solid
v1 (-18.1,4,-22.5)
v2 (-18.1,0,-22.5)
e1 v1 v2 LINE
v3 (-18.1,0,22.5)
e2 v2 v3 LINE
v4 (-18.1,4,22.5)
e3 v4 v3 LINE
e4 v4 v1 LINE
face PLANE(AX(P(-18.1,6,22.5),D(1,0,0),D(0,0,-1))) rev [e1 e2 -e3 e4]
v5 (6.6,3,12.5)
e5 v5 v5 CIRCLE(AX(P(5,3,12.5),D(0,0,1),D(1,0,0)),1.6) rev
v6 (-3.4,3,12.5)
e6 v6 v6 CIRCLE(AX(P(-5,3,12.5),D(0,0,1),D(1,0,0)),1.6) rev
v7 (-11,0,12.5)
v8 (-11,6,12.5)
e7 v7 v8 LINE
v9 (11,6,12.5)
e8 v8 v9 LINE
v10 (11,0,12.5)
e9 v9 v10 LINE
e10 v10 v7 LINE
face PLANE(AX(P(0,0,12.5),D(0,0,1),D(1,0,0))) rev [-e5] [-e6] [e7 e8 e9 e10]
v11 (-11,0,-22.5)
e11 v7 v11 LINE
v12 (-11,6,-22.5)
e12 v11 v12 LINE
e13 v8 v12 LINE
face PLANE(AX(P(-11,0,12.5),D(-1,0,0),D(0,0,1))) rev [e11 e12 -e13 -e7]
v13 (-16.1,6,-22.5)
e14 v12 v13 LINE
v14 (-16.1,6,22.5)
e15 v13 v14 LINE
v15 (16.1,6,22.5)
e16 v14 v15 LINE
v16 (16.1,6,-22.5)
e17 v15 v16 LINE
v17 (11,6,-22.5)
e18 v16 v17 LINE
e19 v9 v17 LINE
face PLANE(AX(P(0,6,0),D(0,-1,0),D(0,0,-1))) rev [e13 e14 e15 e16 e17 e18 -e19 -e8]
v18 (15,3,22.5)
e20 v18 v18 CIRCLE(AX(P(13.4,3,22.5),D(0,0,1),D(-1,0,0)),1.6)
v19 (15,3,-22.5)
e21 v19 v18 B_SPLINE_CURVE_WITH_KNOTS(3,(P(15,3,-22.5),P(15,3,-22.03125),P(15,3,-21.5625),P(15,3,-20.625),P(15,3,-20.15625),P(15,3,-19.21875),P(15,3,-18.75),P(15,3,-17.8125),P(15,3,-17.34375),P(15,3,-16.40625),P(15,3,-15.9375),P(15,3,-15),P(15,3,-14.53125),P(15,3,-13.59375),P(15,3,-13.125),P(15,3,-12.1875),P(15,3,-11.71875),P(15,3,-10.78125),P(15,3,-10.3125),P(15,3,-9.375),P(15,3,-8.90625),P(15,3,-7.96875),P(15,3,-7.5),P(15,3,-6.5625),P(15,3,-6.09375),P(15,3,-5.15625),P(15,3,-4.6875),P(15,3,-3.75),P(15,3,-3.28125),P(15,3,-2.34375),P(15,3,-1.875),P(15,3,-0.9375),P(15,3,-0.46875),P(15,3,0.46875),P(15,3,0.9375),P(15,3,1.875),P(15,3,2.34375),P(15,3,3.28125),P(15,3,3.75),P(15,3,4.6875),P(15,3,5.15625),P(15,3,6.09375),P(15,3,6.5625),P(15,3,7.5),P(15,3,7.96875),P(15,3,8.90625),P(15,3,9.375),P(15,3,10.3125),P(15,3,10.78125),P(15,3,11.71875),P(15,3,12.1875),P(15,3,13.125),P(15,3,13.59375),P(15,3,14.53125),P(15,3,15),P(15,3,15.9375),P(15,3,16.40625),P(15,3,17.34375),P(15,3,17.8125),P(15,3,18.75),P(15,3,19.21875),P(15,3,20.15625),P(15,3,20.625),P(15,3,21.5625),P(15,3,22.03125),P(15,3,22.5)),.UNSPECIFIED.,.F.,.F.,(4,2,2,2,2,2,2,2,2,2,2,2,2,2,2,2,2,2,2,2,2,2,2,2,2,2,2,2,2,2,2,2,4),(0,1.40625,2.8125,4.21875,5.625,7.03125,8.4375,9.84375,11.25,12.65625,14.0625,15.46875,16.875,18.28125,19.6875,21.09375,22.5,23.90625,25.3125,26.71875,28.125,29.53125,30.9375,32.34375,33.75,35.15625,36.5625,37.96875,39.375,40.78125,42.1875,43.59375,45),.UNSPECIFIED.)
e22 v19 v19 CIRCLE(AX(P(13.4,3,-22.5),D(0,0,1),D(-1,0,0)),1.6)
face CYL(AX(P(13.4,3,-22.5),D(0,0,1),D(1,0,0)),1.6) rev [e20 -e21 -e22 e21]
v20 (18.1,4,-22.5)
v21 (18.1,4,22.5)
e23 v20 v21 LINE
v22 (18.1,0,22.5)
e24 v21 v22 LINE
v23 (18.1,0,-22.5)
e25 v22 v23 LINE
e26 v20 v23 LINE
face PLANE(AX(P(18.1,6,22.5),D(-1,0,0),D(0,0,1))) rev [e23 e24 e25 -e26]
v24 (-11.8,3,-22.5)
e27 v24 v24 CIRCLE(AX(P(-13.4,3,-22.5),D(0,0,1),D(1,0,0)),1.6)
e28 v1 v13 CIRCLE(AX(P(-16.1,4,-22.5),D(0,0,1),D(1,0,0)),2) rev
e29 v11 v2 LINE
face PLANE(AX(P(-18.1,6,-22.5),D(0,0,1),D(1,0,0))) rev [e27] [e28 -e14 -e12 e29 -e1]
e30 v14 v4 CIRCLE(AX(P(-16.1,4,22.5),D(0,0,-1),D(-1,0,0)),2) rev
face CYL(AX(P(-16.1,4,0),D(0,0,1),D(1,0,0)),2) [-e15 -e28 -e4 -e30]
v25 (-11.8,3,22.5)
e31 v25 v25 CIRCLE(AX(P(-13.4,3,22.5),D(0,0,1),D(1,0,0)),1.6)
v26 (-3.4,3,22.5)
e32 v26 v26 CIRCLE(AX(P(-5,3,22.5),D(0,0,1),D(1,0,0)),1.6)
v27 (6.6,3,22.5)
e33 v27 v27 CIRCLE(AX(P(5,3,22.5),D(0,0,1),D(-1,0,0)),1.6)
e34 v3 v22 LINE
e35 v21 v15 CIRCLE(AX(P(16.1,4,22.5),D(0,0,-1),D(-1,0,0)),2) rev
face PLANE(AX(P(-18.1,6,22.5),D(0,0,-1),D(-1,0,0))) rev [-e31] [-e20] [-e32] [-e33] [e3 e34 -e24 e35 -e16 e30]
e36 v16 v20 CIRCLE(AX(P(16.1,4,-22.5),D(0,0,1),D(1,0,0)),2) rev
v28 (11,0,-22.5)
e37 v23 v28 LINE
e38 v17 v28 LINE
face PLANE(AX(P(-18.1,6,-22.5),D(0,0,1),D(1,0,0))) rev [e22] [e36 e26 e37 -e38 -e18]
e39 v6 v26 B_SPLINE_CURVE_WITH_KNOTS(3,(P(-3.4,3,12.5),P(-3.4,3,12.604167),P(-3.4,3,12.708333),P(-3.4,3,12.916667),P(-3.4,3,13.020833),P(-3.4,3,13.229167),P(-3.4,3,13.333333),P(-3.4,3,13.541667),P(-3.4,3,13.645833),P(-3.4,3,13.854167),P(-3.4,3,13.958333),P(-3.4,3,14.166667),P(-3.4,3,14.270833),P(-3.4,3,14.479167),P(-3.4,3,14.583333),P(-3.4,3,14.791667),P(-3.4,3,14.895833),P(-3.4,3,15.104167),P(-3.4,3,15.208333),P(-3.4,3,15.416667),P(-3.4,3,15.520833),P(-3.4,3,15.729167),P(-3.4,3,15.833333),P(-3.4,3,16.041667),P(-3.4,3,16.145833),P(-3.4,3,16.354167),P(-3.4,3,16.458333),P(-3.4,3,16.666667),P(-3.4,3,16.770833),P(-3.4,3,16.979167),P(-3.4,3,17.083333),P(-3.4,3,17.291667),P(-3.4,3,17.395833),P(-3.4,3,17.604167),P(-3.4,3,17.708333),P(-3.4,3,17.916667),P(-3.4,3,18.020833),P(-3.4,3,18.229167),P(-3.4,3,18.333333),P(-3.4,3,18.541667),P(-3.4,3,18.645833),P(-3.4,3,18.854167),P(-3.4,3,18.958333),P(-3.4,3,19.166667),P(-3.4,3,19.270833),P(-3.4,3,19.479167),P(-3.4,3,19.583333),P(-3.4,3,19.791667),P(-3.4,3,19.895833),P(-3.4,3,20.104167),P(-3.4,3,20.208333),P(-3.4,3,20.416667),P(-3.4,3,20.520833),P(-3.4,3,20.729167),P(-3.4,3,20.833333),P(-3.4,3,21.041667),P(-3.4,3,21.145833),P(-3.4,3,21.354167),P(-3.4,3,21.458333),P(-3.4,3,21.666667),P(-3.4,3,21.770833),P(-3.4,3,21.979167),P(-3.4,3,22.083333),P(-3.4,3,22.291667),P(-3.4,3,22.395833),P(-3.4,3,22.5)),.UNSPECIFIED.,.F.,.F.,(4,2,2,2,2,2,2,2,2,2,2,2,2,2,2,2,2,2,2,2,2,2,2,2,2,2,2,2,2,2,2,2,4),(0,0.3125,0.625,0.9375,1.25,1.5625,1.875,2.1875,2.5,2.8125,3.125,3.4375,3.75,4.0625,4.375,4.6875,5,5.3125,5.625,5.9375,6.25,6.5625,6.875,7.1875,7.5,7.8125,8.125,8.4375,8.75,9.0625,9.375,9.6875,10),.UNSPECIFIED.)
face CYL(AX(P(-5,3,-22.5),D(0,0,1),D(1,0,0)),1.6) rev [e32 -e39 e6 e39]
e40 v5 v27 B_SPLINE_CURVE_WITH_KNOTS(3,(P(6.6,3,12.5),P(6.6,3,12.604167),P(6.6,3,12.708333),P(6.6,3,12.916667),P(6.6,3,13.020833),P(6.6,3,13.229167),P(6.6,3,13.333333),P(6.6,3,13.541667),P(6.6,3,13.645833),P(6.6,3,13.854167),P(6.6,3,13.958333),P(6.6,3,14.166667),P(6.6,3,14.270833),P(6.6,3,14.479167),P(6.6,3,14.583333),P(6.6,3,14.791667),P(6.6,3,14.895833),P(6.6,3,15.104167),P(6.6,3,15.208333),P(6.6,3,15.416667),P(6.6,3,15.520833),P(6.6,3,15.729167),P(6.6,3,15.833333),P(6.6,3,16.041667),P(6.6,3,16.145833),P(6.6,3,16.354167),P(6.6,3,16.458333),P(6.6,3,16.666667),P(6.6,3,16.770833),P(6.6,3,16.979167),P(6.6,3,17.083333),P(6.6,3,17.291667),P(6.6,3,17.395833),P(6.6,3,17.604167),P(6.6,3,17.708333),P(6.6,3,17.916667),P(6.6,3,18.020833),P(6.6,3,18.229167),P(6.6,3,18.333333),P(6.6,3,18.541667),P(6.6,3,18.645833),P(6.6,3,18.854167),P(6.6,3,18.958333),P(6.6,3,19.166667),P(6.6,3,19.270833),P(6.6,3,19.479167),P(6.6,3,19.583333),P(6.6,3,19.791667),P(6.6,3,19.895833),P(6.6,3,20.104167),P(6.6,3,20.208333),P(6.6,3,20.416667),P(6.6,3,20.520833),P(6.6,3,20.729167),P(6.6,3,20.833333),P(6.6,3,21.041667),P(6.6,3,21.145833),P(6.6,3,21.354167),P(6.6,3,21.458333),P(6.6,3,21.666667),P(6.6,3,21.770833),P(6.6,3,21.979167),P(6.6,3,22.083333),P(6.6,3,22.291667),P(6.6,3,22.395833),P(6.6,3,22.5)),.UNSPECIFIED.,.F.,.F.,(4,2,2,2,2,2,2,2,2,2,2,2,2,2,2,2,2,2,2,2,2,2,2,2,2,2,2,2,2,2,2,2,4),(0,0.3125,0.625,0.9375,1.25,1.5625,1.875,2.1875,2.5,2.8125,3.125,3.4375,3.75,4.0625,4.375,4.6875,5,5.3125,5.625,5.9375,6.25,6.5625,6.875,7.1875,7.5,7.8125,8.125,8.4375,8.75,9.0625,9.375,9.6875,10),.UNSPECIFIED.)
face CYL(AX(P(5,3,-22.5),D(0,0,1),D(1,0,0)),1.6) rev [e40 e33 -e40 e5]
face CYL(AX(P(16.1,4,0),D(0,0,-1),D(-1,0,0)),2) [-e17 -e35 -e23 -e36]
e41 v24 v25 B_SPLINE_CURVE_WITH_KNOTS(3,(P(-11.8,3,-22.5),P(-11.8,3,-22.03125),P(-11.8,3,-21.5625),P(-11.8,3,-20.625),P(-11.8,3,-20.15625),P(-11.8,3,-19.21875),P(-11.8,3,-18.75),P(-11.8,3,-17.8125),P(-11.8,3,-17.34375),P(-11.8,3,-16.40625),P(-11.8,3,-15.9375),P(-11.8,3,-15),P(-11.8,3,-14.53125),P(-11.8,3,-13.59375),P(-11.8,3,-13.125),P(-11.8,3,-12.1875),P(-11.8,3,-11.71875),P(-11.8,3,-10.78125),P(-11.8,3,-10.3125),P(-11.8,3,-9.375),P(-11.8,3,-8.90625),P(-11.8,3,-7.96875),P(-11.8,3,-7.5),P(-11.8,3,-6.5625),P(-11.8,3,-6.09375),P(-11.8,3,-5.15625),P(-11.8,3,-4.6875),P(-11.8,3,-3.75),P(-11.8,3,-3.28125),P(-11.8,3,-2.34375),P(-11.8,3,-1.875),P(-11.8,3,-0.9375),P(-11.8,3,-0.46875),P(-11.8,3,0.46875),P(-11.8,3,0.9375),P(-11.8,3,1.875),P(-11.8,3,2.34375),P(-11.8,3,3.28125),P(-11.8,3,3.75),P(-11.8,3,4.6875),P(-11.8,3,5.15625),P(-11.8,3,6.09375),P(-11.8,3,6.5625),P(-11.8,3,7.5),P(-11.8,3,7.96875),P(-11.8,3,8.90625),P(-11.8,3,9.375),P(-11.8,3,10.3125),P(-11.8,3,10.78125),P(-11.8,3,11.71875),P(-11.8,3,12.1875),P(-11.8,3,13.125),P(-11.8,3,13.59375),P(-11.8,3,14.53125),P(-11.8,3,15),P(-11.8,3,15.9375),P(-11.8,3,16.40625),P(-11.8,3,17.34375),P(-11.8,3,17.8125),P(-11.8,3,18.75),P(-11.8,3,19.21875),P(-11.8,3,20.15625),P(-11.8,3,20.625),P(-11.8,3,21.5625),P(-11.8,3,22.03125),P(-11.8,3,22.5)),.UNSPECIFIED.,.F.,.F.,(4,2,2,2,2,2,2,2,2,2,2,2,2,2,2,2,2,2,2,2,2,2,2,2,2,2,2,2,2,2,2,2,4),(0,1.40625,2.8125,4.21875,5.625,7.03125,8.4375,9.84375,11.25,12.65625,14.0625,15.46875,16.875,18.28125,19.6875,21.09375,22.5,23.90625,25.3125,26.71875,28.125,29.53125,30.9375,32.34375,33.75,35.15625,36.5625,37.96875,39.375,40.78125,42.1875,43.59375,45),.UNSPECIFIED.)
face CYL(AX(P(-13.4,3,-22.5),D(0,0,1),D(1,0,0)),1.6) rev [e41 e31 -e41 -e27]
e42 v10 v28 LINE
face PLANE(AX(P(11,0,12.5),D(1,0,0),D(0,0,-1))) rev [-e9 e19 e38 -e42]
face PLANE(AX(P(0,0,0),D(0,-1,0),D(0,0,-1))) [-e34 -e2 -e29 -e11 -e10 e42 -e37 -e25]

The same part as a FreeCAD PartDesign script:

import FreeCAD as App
import Part
import Sketcher
from FreeCAD import Vector
Q = App.Units.Quantity


def edges_at(feature, points):
    """Names of the edges that pass closest to the given points."""
    edges = feature.Shape.Edges
    near = lambda p: min(range(len(edges)), key=lambda i: edges[i].distToShape(Part.Vertex(*p))[0])
    return sorted({f"Edge{near(p) + 1}" for p in points})


def add_polygon(sketch, points):
    """Adds a closed chain of lines whose ends are joined by coincident constraints."""
    first, n = sketch.GeometryCount, len(points)
    for a, b in zip(points, points[1:] + points[:1]):
        sketch.addGeometry(Part.LineSegment(App.Vector(*a, 0), App.Vector(*b, 0)), False)
    for i in range(n):
        sketch.addConstraint(Sketcher.Constraint("Coincident", first + i, 2, first + (i + 1) % n, 1))

doc = App.newDocument("Part")
body = doc.addObject("PartDesign::Body", "Body")

# Sketch on XZ plane
sketch1 = body.newObject("Sketcher::SketchObject", "Sketch")
sketch1.AttachmentSupport = (doc.getObject("XZ_Plane"), [""])
sketch1.MapMode = "FlatFace"
add_polygon(sketch1, [(-18, -22), (-18, 22), (18, 22), (18, -22)])  # lines 0-3
sketch1.addConstraint([
    Sketcher.Constraint("Vertical", 0),
    Sketcher.Constraint("Horizontal", 1),
    Sketcher.Constraint("Vertical", 2),
    Sketcher.Constraint("Horizontal", 3),
    Sketcher.Constraint("Symmetric", 0, 2, 2, 2, -1, 1),
    Sketcher.Constraint("DistanceY", 0, 1, 0, 2, Q("45 mm")),
    Sketcher.Constraint("DistanceX", 1, 1, 1, 2, Q("36.2 mm")),
])
pad1 = body.newObject("PartDesign::Pad", "Pad")
pad1.Profile = sketch1
pad1.Length = 6
pad1.Reversed = True

# Sketch on XY plane
sketch2 = body.newObject("Sketcher::SketchObject", "Sketch001")
sketch2.AttachmentSupport = (doc.getObject("XY_Plane"), [""])
sketch2.MapMode = "FlatFace"
sketch2.AttachmentOffset = App.Placement(Vector(0, 0, 22.5), App.Rotation())
sketch2.addGeometry([
    Part.Circle(Vector(-5, 3, 0), Vector(0, 0, 1), 1.6),
    Part.Circle(Vector(-13.4, 3, 0), Vector(0, 0, 1), 1.6),
    Part.Circle(Vector(5, 3, 0), Vector(0, 0, 1), 1.6),
    Part.Circle(Vector(13.4, 3, 0), Vector(0, 0, 1), 1.6),
], False)
sketch2.addConstraint([
    Sketcher.Constraint("Equal", 0, 1),
    Sketcher.Constraint("Equal", 1, 2),
    Sketcher.Constraint("Equal", 2, 3),
    Sketcher.Constraint("Symmetric", 0, 3, 2, 3, -2),
    Sketcher.Constraint("Symmetric", 1, 3, 3, 3, -2),
    Sketcher.Constraint("Horizontal", 0, 3, 1, 3),
    Sketcher.Constraint("Diameter", 0, Q("3.2 mm")),
    Sketcher.Constraint("DistanceX", 0, 3, -1, 1, Q("5 mm")),
    Sketcher.Constraint("DistanceY", -1, 1, 0, 3, Q("3 mm")),
    Sketcher.Constraint("DistanceX", 1, 3, -1, 1, Q("13.4 mm")),
])
pocket1 = body.newObject("PartDesign::Pocket", "Pocket")
pocket1.Profile = sketch2
pocket1.Type = "ThroughAll"

# Sketch on XY plane
sketch3 = body.newObject("Sketcher::SketchObject", "Sketch002")
sketch3.AttachmentSupport = (doc.getObject("XY_Plane"), [""])
sketch3.MapMode = "FlatFace"
sketch3.AttachmentOffset = App.Placement(Vector(0, 0, -22.5), App.Rotation())
add_polygon(sketch3, [(11, 6), (11, 0), (-11, 0), (-11, 6)])  # lines 0-3
sketch3.addConstraint([
    Sketcher.Constraint("Vertical", 0),
    Sketcher.Constraint("Horizontal", 1),
    Sketcher.Constraint("Vertical", 2),
    Sketcher.Constraint("Horizontal", 3),
    Sketcher.Constraint("Symmetric", 0, 2, 1, 2, -1, 1),
    Sketcher.Constraint("DistanceX", 1, 2, 1, 1, Q("22 mm")),
    Sketcher.Constraint("DistanceY", 0, 2, 0, 1, Q("6 mm")),
])
pocket2 = body.newObject("PartDesign::Pocket", "Pocket001")
pocket2.Profile = sketch3
pocket2.Length = 35
pocket2.Reversed = True
doc.recompute()

fillet = body.newObject("PartDesign::Fillet", "Fillet")
fillet.Base = (pocket2, edges_at(pocket2, [(-18.1, 6, 0), (18.1, 6, 0)]))
fillet.Radius = 2

doc.recompute()
